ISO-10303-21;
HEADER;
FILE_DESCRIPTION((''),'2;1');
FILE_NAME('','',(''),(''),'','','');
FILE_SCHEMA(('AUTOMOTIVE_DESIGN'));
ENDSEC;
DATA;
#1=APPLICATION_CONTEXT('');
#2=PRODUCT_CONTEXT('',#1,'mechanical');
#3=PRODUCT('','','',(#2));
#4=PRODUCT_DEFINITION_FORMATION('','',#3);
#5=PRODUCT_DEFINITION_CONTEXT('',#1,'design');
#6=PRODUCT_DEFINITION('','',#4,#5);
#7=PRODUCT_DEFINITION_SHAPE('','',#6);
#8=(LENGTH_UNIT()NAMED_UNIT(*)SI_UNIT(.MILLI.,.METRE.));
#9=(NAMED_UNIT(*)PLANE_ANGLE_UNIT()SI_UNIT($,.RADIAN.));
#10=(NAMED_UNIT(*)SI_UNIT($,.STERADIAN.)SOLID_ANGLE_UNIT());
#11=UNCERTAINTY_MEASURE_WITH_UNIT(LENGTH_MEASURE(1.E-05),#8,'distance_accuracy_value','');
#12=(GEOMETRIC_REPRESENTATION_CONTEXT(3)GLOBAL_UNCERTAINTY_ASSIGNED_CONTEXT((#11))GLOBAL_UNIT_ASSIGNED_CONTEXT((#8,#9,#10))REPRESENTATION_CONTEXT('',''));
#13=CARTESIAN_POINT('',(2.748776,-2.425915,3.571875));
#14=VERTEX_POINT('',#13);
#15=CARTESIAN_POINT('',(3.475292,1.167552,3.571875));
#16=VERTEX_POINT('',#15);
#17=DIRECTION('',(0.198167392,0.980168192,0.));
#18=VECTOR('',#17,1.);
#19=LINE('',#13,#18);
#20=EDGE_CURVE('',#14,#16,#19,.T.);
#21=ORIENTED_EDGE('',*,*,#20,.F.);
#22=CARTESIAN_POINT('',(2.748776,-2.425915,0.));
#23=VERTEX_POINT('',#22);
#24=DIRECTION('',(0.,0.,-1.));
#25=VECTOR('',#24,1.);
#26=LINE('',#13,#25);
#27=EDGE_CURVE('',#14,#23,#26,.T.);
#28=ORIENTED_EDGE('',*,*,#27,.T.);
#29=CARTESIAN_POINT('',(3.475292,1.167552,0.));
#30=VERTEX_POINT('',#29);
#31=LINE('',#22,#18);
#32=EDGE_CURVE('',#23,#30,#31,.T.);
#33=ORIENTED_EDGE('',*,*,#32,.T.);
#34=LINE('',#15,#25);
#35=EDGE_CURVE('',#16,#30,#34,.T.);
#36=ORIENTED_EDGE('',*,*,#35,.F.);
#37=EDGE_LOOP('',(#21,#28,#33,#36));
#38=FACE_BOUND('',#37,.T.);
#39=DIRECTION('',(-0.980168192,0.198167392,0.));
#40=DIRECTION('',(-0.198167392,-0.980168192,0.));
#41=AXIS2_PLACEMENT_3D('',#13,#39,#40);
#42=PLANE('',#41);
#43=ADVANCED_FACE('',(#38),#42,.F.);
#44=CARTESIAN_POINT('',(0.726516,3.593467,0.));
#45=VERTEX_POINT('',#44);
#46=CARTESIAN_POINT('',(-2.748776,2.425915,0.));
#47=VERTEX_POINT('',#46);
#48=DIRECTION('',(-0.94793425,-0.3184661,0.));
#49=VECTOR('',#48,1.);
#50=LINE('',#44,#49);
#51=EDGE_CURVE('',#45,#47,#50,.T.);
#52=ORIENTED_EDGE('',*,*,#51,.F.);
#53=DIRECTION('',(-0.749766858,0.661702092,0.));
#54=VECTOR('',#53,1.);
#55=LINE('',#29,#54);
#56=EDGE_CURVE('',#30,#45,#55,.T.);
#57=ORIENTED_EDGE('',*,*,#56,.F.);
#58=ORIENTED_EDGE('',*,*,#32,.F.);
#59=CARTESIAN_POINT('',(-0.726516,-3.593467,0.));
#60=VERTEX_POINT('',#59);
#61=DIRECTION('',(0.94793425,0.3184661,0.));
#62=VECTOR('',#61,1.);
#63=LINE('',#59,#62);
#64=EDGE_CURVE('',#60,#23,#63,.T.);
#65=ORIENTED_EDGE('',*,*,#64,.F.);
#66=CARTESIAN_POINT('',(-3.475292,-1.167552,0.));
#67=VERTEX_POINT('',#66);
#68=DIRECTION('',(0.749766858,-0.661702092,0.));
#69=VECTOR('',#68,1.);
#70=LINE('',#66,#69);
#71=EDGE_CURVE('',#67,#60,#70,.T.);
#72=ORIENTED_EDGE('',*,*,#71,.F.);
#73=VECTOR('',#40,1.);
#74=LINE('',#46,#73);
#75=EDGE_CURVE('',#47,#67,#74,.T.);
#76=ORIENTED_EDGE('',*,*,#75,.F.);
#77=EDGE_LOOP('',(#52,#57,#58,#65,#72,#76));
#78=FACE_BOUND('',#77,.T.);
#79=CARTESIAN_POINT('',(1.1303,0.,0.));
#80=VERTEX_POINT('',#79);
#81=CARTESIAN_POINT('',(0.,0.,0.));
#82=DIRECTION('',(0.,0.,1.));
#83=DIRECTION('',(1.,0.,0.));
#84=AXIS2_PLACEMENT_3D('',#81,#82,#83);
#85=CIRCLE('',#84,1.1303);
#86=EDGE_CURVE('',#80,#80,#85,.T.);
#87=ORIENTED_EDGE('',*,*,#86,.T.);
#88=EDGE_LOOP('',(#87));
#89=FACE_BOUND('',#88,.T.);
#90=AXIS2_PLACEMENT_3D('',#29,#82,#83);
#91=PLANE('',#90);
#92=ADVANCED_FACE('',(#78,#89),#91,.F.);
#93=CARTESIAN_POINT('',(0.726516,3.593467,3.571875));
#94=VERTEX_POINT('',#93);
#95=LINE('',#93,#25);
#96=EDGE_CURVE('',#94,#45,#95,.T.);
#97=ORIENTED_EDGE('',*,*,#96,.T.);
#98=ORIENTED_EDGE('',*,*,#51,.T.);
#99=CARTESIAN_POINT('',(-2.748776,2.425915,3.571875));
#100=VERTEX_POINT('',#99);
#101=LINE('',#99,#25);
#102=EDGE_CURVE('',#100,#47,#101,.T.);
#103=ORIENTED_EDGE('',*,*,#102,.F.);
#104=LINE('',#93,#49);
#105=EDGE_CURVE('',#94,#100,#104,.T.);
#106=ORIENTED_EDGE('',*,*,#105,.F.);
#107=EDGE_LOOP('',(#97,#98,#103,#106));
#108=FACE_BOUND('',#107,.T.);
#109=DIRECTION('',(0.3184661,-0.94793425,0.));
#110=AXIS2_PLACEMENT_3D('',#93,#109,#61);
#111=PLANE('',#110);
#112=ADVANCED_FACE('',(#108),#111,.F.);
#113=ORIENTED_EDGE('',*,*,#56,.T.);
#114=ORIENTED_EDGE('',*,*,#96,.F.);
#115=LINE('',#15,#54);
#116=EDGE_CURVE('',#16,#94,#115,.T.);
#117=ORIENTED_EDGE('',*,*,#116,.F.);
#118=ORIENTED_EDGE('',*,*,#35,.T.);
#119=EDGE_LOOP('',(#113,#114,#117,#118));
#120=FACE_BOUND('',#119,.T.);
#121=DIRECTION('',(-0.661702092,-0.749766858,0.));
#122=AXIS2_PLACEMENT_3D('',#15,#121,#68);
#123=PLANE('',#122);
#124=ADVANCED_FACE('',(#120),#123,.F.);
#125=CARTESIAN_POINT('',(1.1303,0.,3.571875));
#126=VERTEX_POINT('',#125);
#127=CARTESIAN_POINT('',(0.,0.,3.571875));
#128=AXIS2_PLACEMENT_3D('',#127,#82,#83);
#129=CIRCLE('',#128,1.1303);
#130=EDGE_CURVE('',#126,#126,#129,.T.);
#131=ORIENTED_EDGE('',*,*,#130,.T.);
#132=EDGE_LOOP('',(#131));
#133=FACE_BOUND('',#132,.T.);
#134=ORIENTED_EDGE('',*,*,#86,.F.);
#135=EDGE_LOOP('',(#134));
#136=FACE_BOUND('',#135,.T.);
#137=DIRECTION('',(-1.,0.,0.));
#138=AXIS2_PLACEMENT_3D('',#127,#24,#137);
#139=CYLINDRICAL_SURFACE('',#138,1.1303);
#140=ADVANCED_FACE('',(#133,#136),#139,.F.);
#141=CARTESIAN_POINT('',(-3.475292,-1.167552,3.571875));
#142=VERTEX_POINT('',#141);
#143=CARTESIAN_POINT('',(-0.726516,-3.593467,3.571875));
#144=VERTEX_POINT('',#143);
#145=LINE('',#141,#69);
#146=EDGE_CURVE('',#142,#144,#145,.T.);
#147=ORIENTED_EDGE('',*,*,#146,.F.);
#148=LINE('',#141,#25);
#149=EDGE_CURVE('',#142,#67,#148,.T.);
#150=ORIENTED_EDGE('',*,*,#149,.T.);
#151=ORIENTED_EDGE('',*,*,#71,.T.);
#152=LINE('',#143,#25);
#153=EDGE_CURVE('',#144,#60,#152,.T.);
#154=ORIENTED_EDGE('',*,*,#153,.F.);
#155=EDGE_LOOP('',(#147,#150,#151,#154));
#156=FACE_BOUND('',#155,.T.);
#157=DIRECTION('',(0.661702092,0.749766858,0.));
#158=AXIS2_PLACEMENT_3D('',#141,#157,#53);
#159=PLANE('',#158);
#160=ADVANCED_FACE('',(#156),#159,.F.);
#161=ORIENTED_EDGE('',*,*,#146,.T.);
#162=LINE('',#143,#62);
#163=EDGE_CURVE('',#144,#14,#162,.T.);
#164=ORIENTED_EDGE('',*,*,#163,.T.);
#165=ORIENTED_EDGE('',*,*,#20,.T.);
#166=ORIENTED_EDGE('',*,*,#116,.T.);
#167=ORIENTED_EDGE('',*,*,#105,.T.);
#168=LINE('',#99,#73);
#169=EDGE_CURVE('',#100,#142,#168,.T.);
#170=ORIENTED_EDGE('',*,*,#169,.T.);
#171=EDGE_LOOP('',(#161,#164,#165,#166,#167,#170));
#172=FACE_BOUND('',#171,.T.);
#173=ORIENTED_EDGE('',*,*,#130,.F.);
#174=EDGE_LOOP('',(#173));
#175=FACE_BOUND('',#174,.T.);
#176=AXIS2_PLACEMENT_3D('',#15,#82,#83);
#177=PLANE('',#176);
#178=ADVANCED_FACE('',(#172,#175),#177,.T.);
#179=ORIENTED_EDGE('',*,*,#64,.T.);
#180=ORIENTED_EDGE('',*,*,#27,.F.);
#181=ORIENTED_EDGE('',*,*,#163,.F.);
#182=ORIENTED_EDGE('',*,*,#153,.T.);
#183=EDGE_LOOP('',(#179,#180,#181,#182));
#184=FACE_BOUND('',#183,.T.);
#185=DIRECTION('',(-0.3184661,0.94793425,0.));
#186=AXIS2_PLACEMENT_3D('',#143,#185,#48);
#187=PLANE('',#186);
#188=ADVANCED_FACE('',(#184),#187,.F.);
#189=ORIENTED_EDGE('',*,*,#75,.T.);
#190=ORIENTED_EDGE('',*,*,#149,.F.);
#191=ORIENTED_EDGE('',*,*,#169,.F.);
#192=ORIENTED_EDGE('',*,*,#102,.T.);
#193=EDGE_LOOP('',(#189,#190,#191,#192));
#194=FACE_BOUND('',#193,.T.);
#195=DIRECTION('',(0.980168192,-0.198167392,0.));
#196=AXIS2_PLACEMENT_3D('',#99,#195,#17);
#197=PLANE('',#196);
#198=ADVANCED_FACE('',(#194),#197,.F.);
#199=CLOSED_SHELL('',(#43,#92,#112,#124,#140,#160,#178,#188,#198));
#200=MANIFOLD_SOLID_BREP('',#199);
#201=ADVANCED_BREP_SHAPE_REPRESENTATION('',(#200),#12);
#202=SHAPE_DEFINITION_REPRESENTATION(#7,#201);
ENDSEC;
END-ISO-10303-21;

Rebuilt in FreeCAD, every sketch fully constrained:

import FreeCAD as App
import Part
import Sketcher

V = App.Vector
Q = App.Units.Quantity

doc = App.newDocument("Part")
body = doc.addObject("PartDesign::Body", "Body")

# Sketch on XY plane
sketch1 = body.newObject("Sketcher::SketchObject", "Sketch")
sketch1.AttachmentSupport = (doc.getObject("XY_Plane"), [""])
sketch1.MapMode = "FlatFace"
sketch1.addGeometry([
    Part.LineSegment(V(3.5, 1.2, 0), V(0.7, 3.6, 0)),  # 0
    Part.LineSegment(V(0.7, 3.6, 0), V(-2.7, 2.4, 0)),  # 1
    Part.LineSegment(V(-2.7, 2.4, 0), V(-3.5, -1.2, 0)),  # 2
    Part.LineSegment(V(-3.5, -1.2, 0), V(-0.7, -3.6, 0)),  # 3
    Part.LineSegment(V(-0.7, -3.6, 0), V(2.7, -2.4, 0)),  # 4
    Part.LineSegment(V(2.7, -2.4, 0), V(3.5, 1.2, 0)),  # 5
    Part.Circle(V(0, 0, 0), V(0, 0, 1), 1.1),  # 6
], False)
sketch1.addConstraint([
    Sketcher.Constraint("Coincident", 0, 2, 1, 1),
    Sketcher.Constraint("Coincident", 1, 2, 2, 1),
    Sketcher.Constraint("Coincident", 2, 2, 3, 1),
    Sketcher.Constraint("Coincident", 3, 2, 4, 1),
    Sketcher.Constraint("Coincident", 4, 2, 5, 1),
    Sketcher.Constraint("Coincident", 5, 2, 0, 1),
    Sketcher.Constraint("Coincident", 6, 3, -1, 1),
    Sketcher.Constraint("Symmetric", 0, 2, 3, 2, -1, 1),
    Sketcher.Constraint("Symmetric", 1, 2, 4, 2, -1, 1),
    Sketcher.Constraint("Symmetric", 2, 2, 5, 2, -1, 1),
    Sketcher.Constraint("Equal", 0, 1),
    Sketcher.Constraint("Equal", 1, 2),
    Sketcher.Constraint("Diameter", 6, Q("0.089 in")),
    Sketcher.Constraint("DistanceX", 2, 2, 0, 2, Q("4.201808 mm")),
    Sketcher.Constraint("DistanceY", 2, 2, 0, 2, Q("4.76102 mm")),
    Sketcher.Constraint("DistanceX", 1, 2, 3, 2, Q("2.02226 mm")),
    Sketcher.Constraint("DistanceX", 1, 2, 4, 2, Q("5.497552 mm")),
])
pad1 = body.newObject("PartDesign::Pad", "Pad")
pad1.Profile = sketch1
pad1.Length = Q("0.140625 in")

doc.recompute()
